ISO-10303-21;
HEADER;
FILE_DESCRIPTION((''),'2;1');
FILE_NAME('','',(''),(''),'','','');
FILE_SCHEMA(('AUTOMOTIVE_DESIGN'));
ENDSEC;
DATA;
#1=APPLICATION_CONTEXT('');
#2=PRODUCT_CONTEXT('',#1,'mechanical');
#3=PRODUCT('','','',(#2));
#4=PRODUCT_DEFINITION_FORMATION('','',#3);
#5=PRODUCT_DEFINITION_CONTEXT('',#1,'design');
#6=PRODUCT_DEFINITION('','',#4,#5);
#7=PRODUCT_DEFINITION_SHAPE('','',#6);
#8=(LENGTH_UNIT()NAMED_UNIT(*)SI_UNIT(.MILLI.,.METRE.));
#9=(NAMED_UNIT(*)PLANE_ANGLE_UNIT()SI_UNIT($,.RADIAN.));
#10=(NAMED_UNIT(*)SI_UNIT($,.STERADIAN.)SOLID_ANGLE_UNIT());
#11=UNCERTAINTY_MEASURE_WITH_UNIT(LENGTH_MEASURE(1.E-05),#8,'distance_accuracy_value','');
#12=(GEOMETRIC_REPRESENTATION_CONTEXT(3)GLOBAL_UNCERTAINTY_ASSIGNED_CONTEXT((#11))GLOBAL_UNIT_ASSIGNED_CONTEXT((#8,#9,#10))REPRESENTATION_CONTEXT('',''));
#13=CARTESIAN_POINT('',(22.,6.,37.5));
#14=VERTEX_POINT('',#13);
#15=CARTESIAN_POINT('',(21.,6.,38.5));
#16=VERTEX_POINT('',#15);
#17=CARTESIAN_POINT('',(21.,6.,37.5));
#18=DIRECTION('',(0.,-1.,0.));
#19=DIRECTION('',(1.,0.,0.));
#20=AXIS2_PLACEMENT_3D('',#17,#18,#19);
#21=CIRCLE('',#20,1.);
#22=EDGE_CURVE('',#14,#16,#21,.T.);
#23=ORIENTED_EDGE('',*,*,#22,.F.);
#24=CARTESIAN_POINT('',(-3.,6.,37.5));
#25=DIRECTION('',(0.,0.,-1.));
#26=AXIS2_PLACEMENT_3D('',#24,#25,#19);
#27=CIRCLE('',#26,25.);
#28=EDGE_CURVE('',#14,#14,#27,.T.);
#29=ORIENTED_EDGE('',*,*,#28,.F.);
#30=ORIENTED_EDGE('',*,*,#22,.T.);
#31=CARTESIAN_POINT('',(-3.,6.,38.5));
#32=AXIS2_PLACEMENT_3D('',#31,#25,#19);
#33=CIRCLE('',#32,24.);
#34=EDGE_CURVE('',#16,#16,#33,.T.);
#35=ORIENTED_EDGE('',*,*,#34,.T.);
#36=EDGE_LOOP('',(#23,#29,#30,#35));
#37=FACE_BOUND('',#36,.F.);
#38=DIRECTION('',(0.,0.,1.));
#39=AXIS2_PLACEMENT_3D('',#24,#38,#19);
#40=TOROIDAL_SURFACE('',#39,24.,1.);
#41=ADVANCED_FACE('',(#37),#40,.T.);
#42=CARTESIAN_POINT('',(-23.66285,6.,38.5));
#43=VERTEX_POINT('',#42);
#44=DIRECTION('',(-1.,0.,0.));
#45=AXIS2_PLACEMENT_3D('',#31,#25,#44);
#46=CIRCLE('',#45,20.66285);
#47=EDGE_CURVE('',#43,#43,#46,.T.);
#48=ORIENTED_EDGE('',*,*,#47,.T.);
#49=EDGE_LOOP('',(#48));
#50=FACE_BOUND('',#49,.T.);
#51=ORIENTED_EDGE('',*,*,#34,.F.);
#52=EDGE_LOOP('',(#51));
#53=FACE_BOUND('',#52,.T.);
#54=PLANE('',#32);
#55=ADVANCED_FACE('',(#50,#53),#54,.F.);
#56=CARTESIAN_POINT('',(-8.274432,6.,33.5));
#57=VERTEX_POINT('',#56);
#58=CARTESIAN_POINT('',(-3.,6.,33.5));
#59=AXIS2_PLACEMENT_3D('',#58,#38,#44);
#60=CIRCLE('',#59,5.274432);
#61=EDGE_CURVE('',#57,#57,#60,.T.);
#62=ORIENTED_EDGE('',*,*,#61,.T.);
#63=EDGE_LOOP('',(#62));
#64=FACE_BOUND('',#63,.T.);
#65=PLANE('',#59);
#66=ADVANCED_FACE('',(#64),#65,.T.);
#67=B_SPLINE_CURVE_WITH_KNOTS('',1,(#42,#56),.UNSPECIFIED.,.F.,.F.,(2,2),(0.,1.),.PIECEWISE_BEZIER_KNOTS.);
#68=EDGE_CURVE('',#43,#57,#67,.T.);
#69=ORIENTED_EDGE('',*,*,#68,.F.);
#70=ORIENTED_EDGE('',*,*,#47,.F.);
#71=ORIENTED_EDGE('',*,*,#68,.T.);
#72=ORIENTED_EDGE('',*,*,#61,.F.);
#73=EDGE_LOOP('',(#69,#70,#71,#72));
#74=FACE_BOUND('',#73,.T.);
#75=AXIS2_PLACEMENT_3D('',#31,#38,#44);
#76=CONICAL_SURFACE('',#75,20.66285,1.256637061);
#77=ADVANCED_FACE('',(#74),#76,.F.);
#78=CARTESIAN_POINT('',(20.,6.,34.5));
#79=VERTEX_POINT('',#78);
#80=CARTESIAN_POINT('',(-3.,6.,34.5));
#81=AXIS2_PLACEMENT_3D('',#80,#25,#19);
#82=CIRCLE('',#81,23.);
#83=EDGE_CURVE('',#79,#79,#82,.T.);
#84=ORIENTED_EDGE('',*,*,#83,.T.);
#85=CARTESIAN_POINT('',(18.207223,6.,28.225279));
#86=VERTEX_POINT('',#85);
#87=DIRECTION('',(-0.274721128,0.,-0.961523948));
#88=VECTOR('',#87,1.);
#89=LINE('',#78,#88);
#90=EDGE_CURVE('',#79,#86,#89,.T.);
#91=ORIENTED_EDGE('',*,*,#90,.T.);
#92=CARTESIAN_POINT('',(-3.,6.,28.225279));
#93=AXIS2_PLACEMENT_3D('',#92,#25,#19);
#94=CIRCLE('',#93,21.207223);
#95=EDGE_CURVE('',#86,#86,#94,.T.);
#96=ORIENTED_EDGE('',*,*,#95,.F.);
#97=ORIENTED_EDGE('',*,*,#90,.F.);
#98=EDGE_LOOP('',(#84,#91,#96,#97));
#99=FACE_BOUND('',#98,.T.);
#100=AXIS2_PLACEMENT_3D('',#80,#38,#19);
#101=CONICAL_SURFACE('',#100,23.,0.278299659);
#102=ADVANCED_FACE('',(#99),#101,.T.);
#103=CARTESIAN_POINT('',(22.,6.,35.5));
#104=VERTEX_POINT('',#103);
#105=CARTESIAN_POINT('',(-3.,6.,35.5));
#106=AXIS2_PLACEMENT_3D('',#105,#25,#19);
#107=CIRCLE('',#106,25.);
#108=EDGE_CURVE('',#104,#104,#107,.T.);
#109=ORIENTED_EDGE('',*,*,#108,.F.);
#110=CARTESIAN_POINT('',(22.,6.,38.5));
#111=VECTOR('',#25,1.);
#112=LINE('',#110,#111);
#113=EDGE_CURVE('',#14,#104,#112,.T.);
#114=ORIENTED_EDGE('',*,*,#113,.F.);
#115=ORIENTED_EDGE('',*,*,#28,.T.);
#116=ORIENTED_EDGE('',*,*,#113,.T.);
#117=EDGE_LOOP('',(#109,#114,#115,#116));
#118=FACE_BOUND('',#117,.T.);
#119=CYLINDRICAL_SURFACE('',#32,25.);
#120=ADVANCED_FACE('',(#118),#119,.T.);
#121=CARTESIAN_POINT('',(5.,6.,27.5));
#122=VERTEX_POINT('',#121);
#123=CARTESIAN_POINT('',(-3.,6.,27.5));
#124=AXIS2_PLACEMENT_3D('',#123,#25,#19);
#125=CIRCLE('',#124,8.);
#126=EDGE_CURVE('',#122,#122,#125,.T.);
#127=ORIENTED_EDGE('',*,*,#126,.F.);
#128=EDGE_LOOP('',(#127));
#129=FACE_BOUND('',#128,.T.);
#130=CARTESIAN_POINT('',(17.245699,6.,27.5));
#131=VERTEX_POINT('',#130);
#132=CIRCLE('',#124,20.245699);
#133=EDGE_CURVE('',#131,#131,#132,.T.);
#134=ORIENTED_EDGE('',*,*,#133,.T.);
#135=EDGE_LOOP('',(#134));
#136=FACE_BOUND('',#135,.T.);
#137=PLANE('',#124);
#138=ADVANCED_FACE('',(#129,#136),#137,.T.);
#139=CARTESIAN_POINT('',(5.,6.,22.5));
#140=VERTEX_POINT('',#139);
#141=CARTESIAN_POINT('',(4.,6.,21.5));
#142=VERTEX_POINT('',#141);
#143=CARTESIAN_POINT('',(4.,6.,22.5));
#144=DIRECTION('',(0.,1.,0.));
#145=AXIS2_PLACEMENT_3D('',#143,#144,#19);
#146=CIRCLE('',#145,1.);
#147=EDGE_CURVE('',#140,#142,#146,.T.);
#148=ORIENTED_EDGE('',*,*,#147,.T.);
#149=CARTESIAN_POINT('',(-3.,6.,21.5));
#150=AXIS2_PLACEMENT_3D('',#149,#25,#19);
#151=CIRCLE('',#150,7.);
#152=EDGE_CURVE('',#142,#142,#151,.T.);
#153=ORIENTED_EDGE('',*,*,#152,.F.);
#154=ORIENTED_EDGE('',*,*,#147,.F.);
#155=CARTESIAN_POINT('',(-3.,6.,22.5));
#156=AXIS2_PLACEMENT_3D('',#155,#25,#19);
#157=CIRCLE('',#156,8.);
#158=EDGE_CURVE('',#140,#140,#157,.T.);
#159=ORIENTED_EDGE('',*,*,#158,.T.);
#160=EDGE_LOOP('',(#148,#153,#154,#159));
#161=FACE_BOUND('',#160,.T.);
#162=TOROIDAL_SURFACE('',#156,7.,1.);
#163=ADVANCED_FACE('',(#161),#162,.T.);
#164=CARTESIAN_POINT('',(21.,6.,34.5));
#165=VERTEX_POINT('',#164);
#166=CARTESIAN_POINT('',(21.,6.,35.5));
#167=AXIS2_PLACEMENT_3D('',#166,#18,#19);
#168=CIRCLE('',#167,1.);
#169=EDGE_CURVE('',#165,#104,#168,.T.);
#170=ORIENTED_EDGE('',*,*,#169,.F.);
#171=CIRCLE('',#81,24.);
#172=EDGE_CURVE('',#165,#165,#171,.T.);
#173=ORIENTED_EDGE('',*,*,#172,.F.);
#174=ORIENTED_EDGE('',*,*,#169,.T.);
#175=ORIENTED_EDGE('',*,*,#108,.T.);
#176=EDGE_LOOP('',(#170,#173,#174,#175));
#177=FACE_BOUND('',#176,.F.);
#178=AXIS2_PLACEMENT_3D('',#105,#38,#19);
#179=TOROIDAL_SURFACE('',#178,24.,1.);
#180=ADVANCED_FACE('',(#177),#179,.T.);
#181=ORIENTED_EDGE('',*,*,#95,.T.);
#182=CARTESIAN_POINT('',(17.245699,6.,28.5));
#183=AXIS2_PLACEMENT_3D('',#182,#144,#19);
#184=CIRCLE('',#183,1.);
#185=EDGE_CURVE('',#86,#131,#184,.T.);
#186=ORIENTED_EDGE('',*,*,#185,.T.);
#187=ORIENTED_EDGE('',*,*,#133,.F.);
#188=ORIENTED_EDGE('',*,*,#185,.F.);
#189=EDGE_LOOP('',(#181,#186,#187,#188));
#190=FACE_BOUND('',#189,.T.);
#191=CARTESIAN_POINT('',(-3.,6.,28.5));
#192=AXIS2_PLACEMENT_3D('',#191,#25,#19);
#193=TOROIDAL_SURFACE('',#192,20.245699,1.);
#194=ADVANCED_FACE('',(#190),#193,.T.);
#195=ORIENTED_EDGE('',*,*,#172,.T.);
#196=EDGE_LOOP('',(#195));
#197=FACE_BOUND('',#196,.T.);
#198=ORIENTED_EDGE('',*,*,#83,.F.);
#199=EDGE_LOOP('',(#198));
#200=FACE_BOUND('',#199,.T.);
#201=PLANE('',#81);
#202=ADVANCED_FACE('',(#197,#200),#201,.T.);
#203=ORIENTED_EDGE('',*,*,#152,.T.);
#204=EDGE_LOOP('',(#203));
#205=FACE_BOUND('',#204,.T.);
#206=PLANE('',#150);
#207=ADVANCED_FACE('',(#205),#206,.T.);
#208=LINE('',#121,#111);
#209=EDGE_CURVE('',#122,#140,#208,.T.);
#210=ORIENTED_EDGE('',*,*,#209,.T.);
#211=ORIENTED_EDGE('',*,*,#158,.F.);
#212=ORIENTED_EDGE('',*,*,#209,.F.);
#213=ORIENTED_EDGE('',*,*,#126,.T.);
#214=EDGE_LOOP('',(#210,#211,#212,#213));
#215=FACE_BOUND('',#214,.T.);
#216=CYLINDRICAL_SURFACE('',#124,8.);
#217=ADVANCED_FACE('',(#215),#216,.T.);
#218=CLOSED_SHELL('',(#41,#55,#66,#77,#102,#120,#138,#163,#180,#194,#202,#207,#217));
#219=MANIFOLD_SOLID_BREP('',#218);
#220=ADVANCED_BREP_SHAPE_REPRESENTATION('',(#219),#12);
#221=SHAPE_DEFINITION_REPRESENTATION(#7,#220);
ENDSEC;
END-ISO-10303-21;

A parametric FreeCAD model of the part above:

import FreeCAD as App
import Part
import Sketcher
from FreeCAD import Vector
Q = App.Units.Quantity


def edges_at(feature, points):
    """Names of the edges that pass closest to the given points."""
    edges = feature.Shape.Edges
    near = lambda p: min(range(len(edges)), key=lambda i: edges[i].distToShape(Part.Vertex(*p))[0])
    return sorted({f"Edge{near(p) + 1}" for p in points})

doc = App.newDocument("Part")
params = doc.addObject("Spreadsheet::Sheet", "Params")
for row, (alias, value) in enumerate([
    ("sketch1_width", "25 mm"),
    ("sketch1_width2", "8 mm"),
    ("sketch1_width3", "13 mm"),
    ("sketch1_width4", "2 mm"),
    ("sketch1_height", "17 mm"),
    ("revolution_angle", "360 deg"),
    ("fillet_radius", "1 mm"),
    ("fillet2_radius", "1 mm"),
    ("pocket1_length", "5 mm"),
    ("pocket1_taper", "-72 deg"),
    ("fillet3_radius", "1 mm"),
], start=1):
    params.set(f"A{row}", alias)
    params.set(f"B{row}", "=" + value)
    params.setAlias(f"B{row}", alias)

body = doc.addObject("PartDesign::Body", "Body")

# Sketch on XZ plane
sketch1 = doc.addObject("Sketcher::SketchObject", "Sketch")
body.addObject(sketch1)
sketch1.AttachmentSupport = (doc.XZ_Plane, [""])
sketch1.MapMode = "FlatFace"
sketch1.addGeometry([
    Part.LineSegment(Vector(-25, 0, 0), Vector(0, 0, 0)),  # 0
    Part.LineSegment(Vector(0, 0, 0), Vector(0, 17, 0)),  # 1
    Part.LineSegment(Vector(0, 17, 0), Vector(-8, 17, 0)),  # 2
    Part.LineSegment(Vector(-8, 17, 0), Vector(-8, 11, 0)),  # 3
    Part.LineSegment(Vector(-8, 11, 0), Vector(-21, 11, 0)),  # 4
    Part.LineSegment(Vector(-21, 11, 0), Vector(-23, 4, 0)),  # 5
    Part.LineSegment(Vector(-23, 4, 0), Vector(-25, 4, 0)),  # 6
    Part.LineSegment(Vector(-25, 4, 0), Vector(-25, 0, 0)),  # 7
], False)
sketch1.addConstraint([
    Sketcher.Constraint("Coincident", 0, 2, 1, 1),
    Sketcher.Constraint("Coincident", 1, 2, 2, 1),
    Sketcher.Constraint("Coincident", 2, 2, 3, 1),
    Sketcher.Constraint("Coincident", 3, 2, 4, 1),
    Sketcher.Constraint("Coincident", 4, 2, 5, 1),
    Sketcher.Constraint("Coincident", 5, 2, 6, 1),
    Sketcher.Constraint("Coincident", 6, 2, 7, 1),
    Sketcher.Constraint("Coincident", 7, 2, 0, 1),
    Sketcher.Constraint("Horizontal", 0),
    Sketcher.Constraint("Vertical", 1),
    Sketcher.Constraint("Horizontal", 2),
    Sketcher.Constraint("Vertical", 3),
    Sketcher.Constraint("Horizontal", 4),
    Sketcher.Constraint("Horizontal", 6),
    Sketcher.Constraint("Vertical", 7),
    Sketcher.Constraint("Coincident", 0, 2, -1, 1),
    Sketcher.Constraint("DistanceX", 0, 1, 0, 2, Q("25 mm")),
    Sketcher.Constraint("DistanceX", 2, 2, 2, 1, Q("8 mm")),
    Sketcher.Constraint("DistanceX", 4, 2, 4, 1, Q("13 mm")),
    Sketcher.Constraint("DistanceX", 6, 2, 6, 1, Q("2 mm")),
    Sketcher.Constraint("DistanceY", 1, 1, 1, 2, Q("17 mm")),
    Sketcher.Constraint("DistanceY", 3, 2, 3, 1, Q("6 mm")),
    Sketcher.Constraint("DistanceY", 7, 2, 7, 1, Q("4 mm")),
])
sketch1.setExpression("Constraints[16]", "Params.sketch1_width")
sketch1.setExpression("Constraints[17]", "Params.sketch1_width2")
sketch1.setExpression("Constraints[18]", "Params.sketch1_width3")
sketch1.setExpression("Constraints[19]", "Params.sketch1_width4")
sketch1.setExpression("Constraints[20]", "Params.sketch1_height")
revolution = doc.addObject("PartDesign::Revolution", "Revolution")
body.addObject(revolution)
revolution.Profile = sketch1
revolution.ReferenceAxis = (sketch1, ["V_Axis"])
revolution.setExpression("Angle", "Params.revolution_angle")
doc.recompute()

fillet = doc.addObject("PartDesign::Fillet", "Fillet")
body.addObject(fillet)
fillet.Base = (revolution, edges_at(revolution, [(21, 0, 11), (8, 0, 17)]))
fillet.setExpression("Radius", "Params.fillet_radius")
doc.recompute()

fillet2 = doc.addObject("PartDesign::Fillet", "Fillet001")
body.addObject(fillet2)
fillet2.Base = (fillet, edges_at(fillet, [(25, 0, 4)]))
fillet2.setExpression("Radius", "Params.fillet2_radius")

# Sketch on XY plane
sketch2 = doc.addObject("Sketcher::SketchObject", "Sketch001")
body.addObject(sketch2)
sketch2.AttachmentSupport = (doc.XY_Plane, [""])
sketch2.MapMode = "FlatFace"
sketch2.addGeometry(Part.Circle(Vector(0, 0, 0), Vector(0, 0, 1), 21), False)
sketch2.addConstraint([
    Sketcher.Constraint("Coincident", 0, 3, -1, 1),
    Sketcher.Constraint("Diameter", 0, Q("41.3257 mm")),
])
pocket1 = doc.addObject("PartDesign::Pocket", "Pocket")
body.addObject(pocket1)
pocket1.Profile = sketch2
pocket1.setExpression("Length", "Params.pocket1_length")
pocket1.Reversed = True
pocket1.setExpression("TaperAngle", "Params.pocket1_taper")
doc.recompute()

fillet3 = doc.addObject("PartDesign::Fillet", "Fillet002")
body.addObject(fillet3)
fillet3.Base = (pocket1, edges_at(pocket1, [(25, 0, 0)]))
fillet3.setExpression("Radius", "Params.fillet3_radius")
body2 = doc.addObject("PartDesign::Body", "Body001")
doc.recompute()

body.Placement = App.Placement(Vector(-3, 6, 38.5), App.Rotation(Vector(0, 1, 0), 180))
boolean = doc.addObject("PartDesign::Boolean", "Boolean")
body2.addObject(boolean)
boolean.Type = "Fuse"
boolean.addObjects([body])

doc.recompute()
